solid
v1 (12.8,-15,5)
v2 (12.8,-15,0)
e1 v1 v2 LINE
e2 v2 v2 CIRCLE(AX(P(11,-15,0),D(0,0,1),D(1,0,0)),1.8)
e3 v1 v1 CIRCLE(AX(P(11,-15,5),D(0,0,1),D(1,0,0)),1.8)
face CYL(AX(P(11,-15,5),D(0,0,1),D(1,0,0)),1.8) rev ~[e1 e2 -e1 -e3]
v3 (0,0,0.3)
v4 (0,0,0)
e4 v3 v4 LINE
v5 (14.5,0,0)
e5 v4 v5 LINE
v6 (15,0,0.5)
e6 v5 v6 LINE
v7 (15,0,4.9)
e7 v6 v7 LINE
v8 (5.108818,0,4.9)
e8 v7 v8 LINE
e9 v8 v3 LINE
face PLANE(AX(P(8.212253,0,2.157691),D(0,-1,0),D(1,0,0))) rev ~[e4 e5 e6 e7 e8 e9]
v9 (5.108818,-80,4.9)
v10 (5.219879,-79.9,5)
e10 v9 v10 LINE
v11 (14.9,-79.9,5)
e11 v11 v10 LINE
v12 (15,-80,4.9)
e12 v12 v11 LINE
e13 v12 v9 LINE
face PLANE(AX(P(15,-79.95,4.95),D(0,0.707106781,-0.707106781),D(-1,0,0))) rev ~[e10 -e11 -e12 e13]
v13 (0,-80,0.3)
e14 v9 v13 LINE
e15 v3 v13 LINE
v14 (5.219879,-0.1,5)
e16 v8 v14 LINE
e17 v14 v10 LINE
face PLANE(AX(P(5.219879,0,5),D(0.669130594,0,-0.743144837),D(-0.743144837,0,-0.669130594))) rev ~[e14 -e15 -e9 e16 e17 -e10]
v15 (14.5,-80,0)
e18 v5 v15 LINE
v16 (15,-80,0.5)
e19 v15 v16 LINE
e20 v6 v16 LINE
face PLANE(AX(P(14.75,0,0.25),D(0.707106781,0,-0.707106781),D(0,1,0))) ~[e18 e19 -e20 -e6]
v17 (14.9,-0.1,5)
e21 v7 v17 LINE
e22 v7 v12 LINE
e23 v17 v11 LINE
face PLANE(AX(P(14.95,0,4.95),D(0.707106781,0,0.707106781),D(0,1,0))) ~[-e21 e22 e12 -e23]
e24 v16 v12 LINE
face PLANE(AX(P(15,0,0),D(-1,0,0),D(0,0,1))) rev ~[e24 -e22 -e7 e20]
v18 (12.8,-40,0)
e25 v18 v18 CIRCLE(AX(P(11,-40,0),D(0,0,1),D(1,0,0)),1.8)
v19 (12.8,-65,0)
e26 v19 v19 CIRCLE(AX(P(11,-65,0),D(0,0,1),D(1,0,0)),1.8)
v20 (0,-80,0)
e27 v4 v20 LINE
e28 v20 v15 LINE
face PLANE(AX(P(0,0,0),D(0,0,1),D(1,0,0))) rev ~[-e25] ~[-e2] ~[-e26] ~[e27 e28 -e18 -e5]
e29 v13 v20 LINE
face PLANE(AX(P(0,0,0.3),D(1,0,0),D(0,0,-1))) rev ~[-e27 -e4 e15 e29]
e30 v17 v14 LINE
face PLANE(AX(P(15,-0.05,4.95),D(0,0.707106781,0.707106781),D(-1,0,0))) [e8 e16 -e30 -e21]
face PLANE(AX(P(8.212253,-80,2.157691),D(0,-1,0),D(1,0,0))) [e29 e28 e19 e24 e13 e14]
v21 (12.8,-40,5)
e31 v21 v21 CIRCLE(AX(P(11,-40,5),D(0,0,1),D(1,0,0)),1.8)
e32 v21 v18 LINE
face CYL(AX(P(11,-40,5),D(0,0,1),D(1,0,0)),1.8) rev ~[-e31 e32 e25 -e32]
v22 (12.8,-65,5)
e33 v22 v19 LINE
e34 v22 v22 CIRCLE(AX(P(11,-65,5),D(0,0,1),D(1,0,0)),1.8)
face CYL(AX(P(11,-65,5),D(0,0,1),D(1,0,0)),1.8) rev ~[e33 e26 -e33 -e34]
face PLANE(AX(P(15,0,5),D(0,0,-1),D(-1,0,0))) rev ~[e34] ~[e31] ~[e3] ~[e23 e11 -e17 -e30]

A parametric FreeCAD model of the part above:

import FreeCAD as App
import Part
import Sketcher
Q = App.Units.Quantity


def edges_at(feature, points):
    """Names of the edges that pass closest to the given points."""
    edges = feature.Shape.Edges
    near = lambda p: min(range(len(edges)), key=lambda i: edges[i].distToShape(Part.Vertex(*p))[0])
    return sorted({f"Edge{near(p) + 1}" for p in points})

doc = App.newDocument("Part")
body = doc.addObject("PartDesign::Body", "Body")

# Sketch on XZ plane
sketch1 = body.newObject("Sketcher::SketchObject", "Sketch")
sketch1.AttachmentSupport = (doc.getObject("XZ_Plane"), [""])
sketch1.MapMode = "FlatFace"
sketch1.addGeometry(Part.LineSegment(App.Vector(0, 0.3, 0), App.Vector(0, 0, 0)), False)
sketch1.addGeometry(Part.LineSegment(App.Vector(0, 0, 0), App.Vector(15, 0, 0)), False)
sketch1.addGeometry(Part.LineSegment(App.Vector(15, 0, 0), App.Vector(15, 5, 0)), False)
sketch1.addGeometry(Part.LineSegment(App.Vector(15, 5, 0), App.Vector(5.22, 5, 0)), False)
sketch1.addGeometry(Part.LineSegment(App.Vector(5.22, 5, 0), App.Vector(0, 0.3, 0)), False)
sketch1.addConstraint(Sketcher.Constraint("Coincident", 0, 2, 1, 1))
sketch1.addConstraint(Sketcher.Constraint("Coincident", 1, 2, 2, 1))
sketch1.addConstraint(Sketcher.Constraint("Coincident", 2, 2, 3, 1))
sketch1.addConstraint(Sketcher.Constraint("Coincident", 3, 2, 4, 1))
sketch1.addConstraint(Sketcher.Constraint("Coincident", 4, 2, 0, 1))
sketch1.addConstraint(Sketcher.Constraint("Vertical", 0))
sketch1.addConstraint(Sketcher.Constraint("Horizontal", 1))
sketch1.addConstraint(Sketcher.Constraint("Vertical", 2))
sketch1.addConstraint(Sketcher.Constraint("Horizontal", 3))
sketch1.addConstraint(Sketcher.Constraint("Coincident", 0, 2, -1, 1))
sketch1.addConstraint(Sketcher.Constraint("DistanceX", 1, 1, 1, 2, Q("15 mm")))
sketch1.addConstraint(Sketcher.Constraint("DistanceY", 2, 1, 2, 2, Q("5 mm")))
sketch1.addConstraint(Sketcher.Constraint("Angle", 4, Q("-138.000001 deg")))
sketch1.addConstraint(Sketcher.Constraint("DistanceY", 0, 2, 0, 1, Q("0.3 mm")))
pad1 = body.newObject("PartDesign::Pad", "Pad")
pad1.Profile = sketch1
pad1.Length = 80

# Sketch on XY plane
sketch2 = body.newObject("Sketcher::SketchObject", "Sketch001")
sketch2.AttachmentSupport = (doc.getObject("XY_Plane"), [""])
sketch2.MapMode = "FlatFace"
sketch2.AttachmentOffset = App.Placement(App.Vector(0, 0, 5), App.Rotation())
sketch2.addGeometry(Part.Circle(App.Vector(11, -40, 0), App.Vector(0, 0, 1), 1.8), False)
sketch2.addGeometry(Part.Circle(App.Vector(11, -15, 0), App.Vector(0, 0, 1), 1.8), False)
sketch2.addGeometry(Part.Circle(App.Vector(11, -65, 0), App.Vector(0, 0, 1), 1.8), False)
sketch2.addConstraint(Sketcher.Constraint("Equal", 0, 1))
sketch2.addConstraint(Sketcher.Constraint("Equal", 1, 2))
sketch2.addConstraint(Sketcher.Constraint("Vertical", 0, 3, 1, 3))
sketch2.addConstraint(Sketcher.Constraint("Vertical", 1, 3, 2, 3))
sketch2.addConstraint(Sketcher.Constraint("Diameter", 0, Q("3.6 mm")))
sketch2.addConstraint(Sketcher.Constraint("DistanceX", -1, 1, 0, 3, Q("11 mm")))
sketch2.addConstraint(Sketcher.Constraint("DistanceY", 0, 3, -1, 1, Q("40 mm")))
sketch2.addConstraint(Sketcher.Constraint("DistanceY", 1, 3, -1, 1, Q("15 mm")))
sketch2.addConstraint(Sketcher.Constraint("DistanceY", 2, 3, -1, 1, Q("65 mm")))
pocket1 = body.newObject("PartDesign::Pocket", "Pocket")
pocket1.Profile = sketch2
pocket1.Type = "ThroughAll"
doc.recompute()

chamfer = body.newObject("PartDesign::Chamfer", "Chamfer")
chamfer.Base = (pocket1, edges_at(pocket1, [(15, -40, 0)]))
chamfer.Size = 0.5
doc.recompute()

chamfer2 = body.newObject("PartDesign::Chamfer", "Chamfer001")
chamfer2.Base = (chamfer, edges_at(chamfer, [(15, -40, 5), (10.11, -80, 5), (10.11, 0, 5)]))
chamfer2.Size = 0.1

doc.recompute()
